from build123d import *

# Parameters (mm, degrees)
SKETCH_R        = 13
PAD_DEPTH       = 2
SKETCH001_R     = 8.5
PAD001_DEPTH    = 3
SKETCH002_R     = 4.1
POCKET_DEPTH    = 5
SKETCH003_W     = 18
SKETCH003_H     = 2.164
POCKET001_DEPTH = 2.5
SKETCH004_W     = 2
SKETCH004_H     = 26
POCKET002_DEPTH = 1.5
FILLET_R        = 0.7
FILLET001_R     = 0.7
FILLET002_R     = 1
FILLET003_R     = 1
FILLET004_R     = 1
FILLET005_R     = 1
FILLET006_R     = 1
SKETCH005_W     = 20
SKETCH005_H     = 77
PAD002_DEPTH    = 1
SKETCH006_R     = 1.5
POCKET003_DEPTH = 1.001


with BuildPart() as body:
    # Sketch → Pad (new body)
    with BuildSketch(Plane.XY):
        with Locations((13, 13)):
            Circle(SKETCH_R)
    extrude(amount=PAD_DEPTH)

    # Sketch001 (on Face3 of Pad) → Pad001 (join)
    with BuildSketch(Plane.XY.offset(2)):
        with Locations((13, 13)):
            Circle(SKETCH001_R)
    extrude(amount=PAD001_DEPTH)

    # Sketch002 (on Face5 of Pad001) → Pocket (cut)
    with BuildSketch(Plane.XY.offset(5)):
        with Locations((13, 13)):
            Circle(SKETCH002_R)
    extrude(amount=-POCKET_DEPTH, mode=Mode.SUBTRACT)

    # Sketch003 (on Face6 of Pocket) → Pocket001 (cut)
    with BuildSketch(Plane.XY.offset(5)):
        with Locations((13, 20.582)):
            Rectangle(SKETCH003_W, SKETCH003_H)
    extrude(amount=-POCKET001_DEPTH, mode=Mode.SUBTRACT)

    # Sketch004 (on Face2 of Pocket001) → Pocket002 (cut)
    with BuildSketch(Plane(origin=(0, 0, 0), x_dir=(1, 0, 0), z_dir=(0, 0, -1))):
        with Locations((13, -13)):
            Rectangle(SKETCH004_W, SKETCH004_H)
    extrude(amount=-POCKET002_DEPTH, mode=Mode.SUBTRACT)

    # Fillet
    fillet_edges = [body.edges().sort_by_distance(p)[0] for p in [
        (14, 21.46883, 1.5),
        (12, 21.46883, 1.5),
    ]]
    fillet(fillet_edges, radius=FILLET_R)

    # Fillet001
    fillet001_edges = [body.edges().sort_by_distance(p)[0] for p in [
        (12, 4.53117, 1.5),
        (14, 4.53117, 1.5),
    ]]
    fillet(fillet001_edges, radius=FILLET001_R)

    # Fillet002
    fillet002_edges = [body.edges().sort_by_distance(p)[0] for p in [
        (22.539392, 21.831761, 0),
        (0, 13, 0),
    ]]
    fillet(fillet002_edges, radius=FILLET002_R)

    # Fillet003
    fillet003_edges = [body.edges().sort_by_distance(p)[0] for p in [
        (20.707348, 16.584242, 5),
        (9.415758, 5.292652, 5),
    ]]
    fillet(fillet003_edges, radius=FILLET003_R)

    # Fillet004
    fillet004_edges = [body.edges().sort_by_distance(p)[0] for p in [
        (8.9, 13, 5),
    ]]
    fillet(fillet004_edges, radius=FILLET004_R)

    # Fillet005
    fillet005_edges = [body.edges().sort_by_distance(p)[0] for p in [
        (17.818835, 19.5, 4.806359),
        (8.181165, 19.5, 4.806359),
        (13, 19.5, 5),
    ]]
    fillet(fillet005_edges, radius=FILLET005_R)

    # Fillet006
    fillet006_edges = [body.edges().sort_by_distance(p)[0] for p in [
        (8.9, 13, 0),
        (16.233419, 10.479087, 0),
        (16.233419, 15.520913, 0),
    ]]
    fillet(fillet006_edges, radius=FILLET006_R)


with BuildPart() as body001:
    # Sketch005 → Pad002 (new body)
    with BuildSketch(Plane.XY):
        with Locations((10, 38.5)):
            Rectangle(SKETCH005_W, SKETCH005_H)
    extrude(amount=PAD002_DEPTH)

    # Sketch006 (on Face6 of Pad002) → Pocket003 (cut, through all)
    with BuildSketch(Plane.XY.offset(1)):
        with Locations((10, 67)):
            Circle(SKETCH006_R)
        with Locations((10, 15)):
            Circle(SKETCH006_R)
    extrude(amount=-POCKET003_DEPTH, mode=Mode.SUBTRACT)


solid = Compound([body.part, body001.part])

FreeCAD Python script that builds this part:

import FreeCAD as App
import Part
import Sketcher

V = App.Vector
Q = App.Units.Quantity


def edges_at(feature, points):
    """Names of the edges that pass closest to the given points."""
    edges = feature.Shape.Edges
    near = lambda p: min(range(len(edges)), key=lambda i: edges[i].distToShape(Part.Vertex(*p))[0])
    return sorted({f"Edge{near(p) + 1}" for p in points})


def add_polygon(sketch, points):
    """Adds a closed chain of lines whose ends are joined by coincident constraints."""
    first, n = sketch.GeometryCount, len(points)
    for a, b in zip(points, points[1:] + points[:1]):
        sketch.addGeometry(Part.LineSegment(App.Vector(*a, 0), App.Vector(*b, 0)), False)
    for i in range(n):
        sketch.addConstraint(Sketcher.Constraint("Coincident", first + i, 2, first + (i + 1) % n, 1))

doc = App.newDocument("Part")
body = doc.addObject("PartDesign::Body", "Body")

sketch1 = doc.addObject("Sketcher::SketchObject", "Sketch")
body.addObject(sketch1)
sketch1.AttachmentSupport = (doc.XY_Plane, [""])
sketch1.MapMode = "FlatFace"
sketch1.addGeometry(Part.Circle(V(13, 13, 0), V(0, 0, 1), 13), False)
sketch1.addConstraint([
    Sketcher.Constraint("Diameter", 0, Q("26 mm")),
    Sketcher.Constraint("DistanceX", -1, 1, 0, 3, Q("13 mm")),
    Sketcher.Constraint("DistanceY", -1, 1, 0, 3, Q("13 mm")),
])
pad1 = doc.addObject("PartDesign::Pad", "Pad")
body.addObject(pad1)
pad1.Profile = sketch1
pad1.Length = 2

sketch2 = doc.addObject("Sketcher::SketchObject", "Sketch001")
body.addObject(sketch2)
sketch2.AttachmentSupport = (doc.XY_Plane, [""])
sketch2.MapMode = "FlatFace"
sketch2.AttachmentOffset = App.Placement(V(0, 0, 2), App.Rotation())
sketch2.addGeometry(Part.Circle(V(13, 13, 0), V(0, 0, 1), 8), False)
sketch2.addConstraint([
    Sketcher.Constraint("Diameter", 0, Q("17 mm")),
    Sketcher.Constraint("DistanceX", -1, 1, 0, 3, Q("13 mm")),
    Sketcher.Constraint("DistanceY", -1, 1, 0, 3, Q("13 mm")),
])
pad2 = doc.addObject("PartDesign::Pad", "Pad001")
body.addObject(pad2)
pad2.Profile = sketch2
pad2.Length = 3

sketch3 = doc.addObject("Sketcher::SketchObject", "Sketch002")
body.addObject(sketch3)
sketch3.AttachmentSupport = (doc.XY_Plane, [""])
sketch3.MapMode = "FlatFace"
sketch3.AttachmentOffset = App.Placement(V(0, 0, 5), App.Rotation())
sketch3.addGeometry(Part.Circle(V(13, 13, 0), V(0, 0, 1), 4.1), False)
sketch3.addConstraint([
    Sketcher.Constraint("Diameter", 0, Q("8.2 mm")),
    Sketcher.Constraint("DistanceX", -1, 1, 0, 3, Q("13 mm")),
    Sketcher.Constraint("DistanceY", -1, 1, 0, 3, Q("13 mm")),
])
pocket1 = doc.addObject("PartDesign::Pocket", "Pocket")
body.addObject(pocket1)
pocket1.Profile = sketch3
pocket1.Length = 5

sketch4 = doc.addObject("Sketcher::SketchObject", "Sketch003")
body.addObject(sketch4)
sketch4.AttachmentSupport = (doc.XY_Plane, [""])
sketch4.MapMode = "FlatFace"
sketch4.AttachmentOffset = App.Placement(V(0, 0, 5), App.Rotation())
add_polygon(sketch4, [(4, 21.7), (4, 19.5), (22, 19.5), (22, 21.7)])
sketch4.addConstraint([
    Sketcher.Constraint("Vertical", 0),
    Sketcher.Constraint("Horizontal", 1),
    Sketcher.Constraint("Vertical", 2),
    Sketcher.Constraint("Horizontal", 3),
    Sketcher.Constraint("DistanceX", 1, 1, 1, 2, Q("18 mm")),
    Sketcher.Constraint("DistanceX", -1, 1, 0, 2, Q("4 mm")),
    Sketcher.Constraint("DistanceY", -1, 1, 0, 2, Q("19.5 mm")),
    Sketcher.Constraint("DistanceY", 0, 2, 0, 1, Q("2.164 mm")),
])
pocket2 = doc.addObject("PartDesign::Pocket", "Pocket001")
body.addObject(pocket2)
pocket2.Profile = sketch4
pocket2.Length = 2.5

sketch5 = doc.addObject("Sketcher::SketchObject", "Sketch004")
body.addObject(sketch5)
sketch5.AttachmentSupport = (doc.XY_Plane, [""])
sketch5.MapMode = "FlatFace"
add_polygon(sketch5, [(12, 0), (12, 26), (14, 26), (14, 0)])
sketch5.addConstraint([
    Sketcher.Constraint("Vertical", 0),
    Sketcher.Constraint("Horizontal", 1),
    Sketcher.Constraint("Vertical", 2),
    Sketcher.Constraint("Horizontal", 3),
    Sketcher.Constraint("PointOnObject", 2, 2, -1),
    Sketcher.Constraint("DistanceX", 1, 1, 1, 2, Q("2 mm")),
    Sketcher.Constraint("DistanceY", 0, 1, 0, 2, Q("26 mm")),
    Sketcher.Constraint("DistanceX", -1, 1, 0, 2, Q("12 mm")),
])
pocket3 = doc.addObject("PartDesign::Pocket", "Pocket002")
body.addObject(pocket3)
pocket3.Profile = sketch5
pocket3.Length = 1.5
pocket3.Reversed = True
doc.recompute()

fillet = doc.addObject("PartDesign::Fillet", "Fillet")
body.addObject(fillet)
fillet.Base = (pocket3, edges_at(pocket3, [(14, 21.469, 1.5), (12, 21.469, 1.5)]))
fillet.Radius = 0.7
doc.recompute()

fillet2 = doc.addObject("PartDesign::Fillet", "Fillet001")
body.addObject(fillet2)
fillet2.Base = (fillet, edges_at(fillet, [(12, 4.531, 1.5), (14, 4.531, 1.5)]))
fillet2.Radius = 0.7
doc.recompute()

fillet3 = doc.addObject("PartDesign::Fillet", "Fillet002")
body.addObject(fillet3)
fillet3.Base = (fillet2, edges_at(fillet2, [(22.539, 21.832, 0), (0, 13, 0)]))
fillet3.Radius = 1
doc.recompute()

fillet4 = doc.addObject("PartDesign::Fillet", "Fillet003")
body.addObject(fillet4)
fillet4.Base = (fillet3, edges_at(fillet3, [(20.707, 16.584, 5), (9.416, 5.293, 5)]))
fillet4.Radius = 1
doc.recompute()

fillet5 = doc.addObject("PartDesign::Fillet", "Fillet004")
body.addObject(fillet5)
fillet5.Base = (fillet4, edges_at(fillet4, [(8.9, 13, 5)]))
fillet5.Radius = 1
doc.recompute()

fillet6 = doc.addObject("PartDesign::Fillet", "Fillet005")
body.addObject(fillet6)
fillet6.Base = (fillet5, edges_at(fillet5, [(17.819, 19.5, 4.806), (8.181, 19.5, 4.806), (13, 19.5, 5)]))
fillet6.Radius = 1
doc.recompute()

fillet7 = doc.addObject("PartDesign::Fillet", "Fillet006")
body.addObject(fillet7)
fillet7.Base = (fillet6, edges_at(fillet6, [(8.9, 13, 0), (16.233, 10.479, 0), (16.233, 15.521, 0)]))
fillet7.Radius = 1
body2 = doc.addObject("PartDesign::Body", "Body001")

sketch6 = doc.addObject("Sketcher::SketchObject", "Sketch005")
body2.addObject(sketch6)
sketch6.AttachmentSupport = (doc.getObject("XY_Plane001"), [""])
sketch6.MapMode = "FlatFace"
add_polygon(sketch6, [(0, 77), (0, 0), (20, 0), (20, 77)])
sketch6.addConstraint([
    Sketcher.Constraint("Vertical", 0),
    Sketcher.Constraint("Horizontal", 1),
    Sketcher.Constraint("Vertical", 2),
    Sketcher.Constraint("Horizontal", 3),
    Sketcher.Constraint("Coincident", 0, 2, -1, 1),
    Sketcher.Constraint("DistanceX", 1, 1, 1, 2, Q("20 mm")),
    Sketcher.Constraint("DistanceY", 0, 2, 0, 1, Q("77 mm")),
])
pad3 = doc.addObject("PartDesign::Pad", "Pad002")
body2.addObject(pad3)
pad3.Profile = sketch6
pad3.Length = 1

sketch7 = doc.addObject("Sketcher::SketchObject", "Sketch006")
body2.addObject(sketch7)
sketch7.AttachmentSupport = (doc.getObject("XY_Plane001"), [""])
sketch7.MapMode = "FlatFace"
sketch7.AttachmentOffset = App.Placement(V(0, 0, 1), App.Rotation())
sketch7.addGeometry([
    Part.Circle(V(10, 67, 0), V(0, 0, 1), 1.5),
    Part.Circle(V(10, 15, 0), V(0, 0, 1), 1.5),
], False)
sketch7.addConstraint([
    Sketcher.Constraint("Equal", 0, 1),
    Sketcher.Constraint("Vertical", 0, 3, 1, 3),
    Sketcher.Constraint("Diameter", 0, Q("3 mm")),
    Sketcher.Constraint("DistanceX", -1, 1, 0, 3, Q("10 mm")),
    Sketcher.Constraint("DistanceY", -1, 1, 0, 3, Q("67 mm")),
    Sketcher.Constraint("DistanceY", -1, 1, 1, 3, Q("15 mm")),
])
pocket4 = doc.addObject("PartDesign::Pocket", "Pocket003")
body2.addObject(pocket4)
pocket4.Profile = sketch7
pocket4.Type = "ThroughAll"

doc.recompute()
